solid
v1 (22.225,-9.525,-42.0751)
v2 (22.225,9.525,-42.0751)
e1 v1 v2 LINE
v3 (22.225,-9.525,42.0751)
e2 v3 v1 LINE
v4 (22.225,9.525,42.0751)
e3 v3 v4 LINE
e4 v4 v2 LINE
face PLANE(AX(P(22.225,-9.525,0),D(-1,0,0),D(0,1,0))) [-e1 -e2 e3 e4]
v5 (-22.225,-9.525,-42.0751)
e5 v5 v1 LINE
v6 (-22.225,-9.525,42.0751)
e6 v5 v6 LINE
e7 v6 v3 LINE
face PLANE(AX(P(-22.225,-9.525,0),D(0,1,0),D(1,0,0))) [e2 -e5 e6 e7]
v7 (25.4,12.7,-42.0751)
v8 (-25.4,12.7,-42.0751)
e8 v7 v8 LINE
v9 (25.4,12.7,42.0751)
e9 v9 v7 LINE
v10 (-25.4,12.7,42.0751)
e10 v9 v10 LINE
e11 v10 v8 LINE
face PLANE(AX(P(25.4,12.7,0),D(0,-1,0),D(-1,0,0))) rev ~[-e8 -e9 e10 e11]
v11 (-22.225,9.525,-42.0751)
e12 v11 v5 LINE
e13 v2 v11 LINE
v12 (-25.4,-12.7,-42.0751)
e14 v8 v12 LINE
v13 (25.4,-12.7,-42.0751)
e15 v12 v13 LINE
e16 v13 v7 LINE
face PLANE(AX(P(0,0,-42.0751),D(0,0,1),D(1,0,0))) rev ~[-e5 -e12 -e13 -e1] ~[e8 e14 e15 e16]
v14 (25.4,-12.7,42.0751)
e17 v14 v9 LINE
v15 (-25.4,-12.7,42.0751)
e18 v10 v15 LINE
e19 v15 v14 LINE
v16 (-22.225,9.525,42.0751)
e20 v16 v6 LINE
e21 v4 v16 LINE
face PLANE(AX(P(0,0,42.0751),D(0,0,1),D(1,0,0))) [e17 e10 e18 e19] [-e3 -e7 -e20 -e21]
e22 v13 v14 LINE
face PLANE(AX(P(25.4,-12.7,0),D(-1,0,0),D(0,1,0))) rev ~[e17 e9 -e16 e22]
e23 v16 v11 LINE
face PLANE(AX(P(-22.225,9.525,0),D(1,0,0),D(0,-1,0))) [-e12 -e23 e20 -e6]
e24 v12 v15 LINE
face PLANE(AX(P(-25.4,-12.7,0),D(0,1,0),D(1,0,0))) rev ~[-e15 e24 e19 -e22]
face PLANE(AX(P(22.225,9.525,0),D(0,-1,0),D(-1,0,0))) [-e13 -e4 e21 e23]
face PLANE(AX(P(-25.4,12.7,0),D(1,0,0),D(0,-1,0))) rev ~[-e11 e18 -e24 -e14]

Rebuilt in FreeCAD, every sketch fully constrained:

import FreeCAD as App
import Part
import Sketcher
Q = App.Units.Quantity

doc = App.newDocument("Part")
params = doc.addObject("Spreadsheet::Sheet", "Params")
for row, (alias, value) in enumerate([
    ("sketch1_width", "2 in"),
    ("sketch1_height", "1 in"),
    ("sketch1_width2", "1.75 in"),
    ("sketch1_height2", "0.75 in"),
    ("pad1_length", "3.313 in"),
], start=1):
    params.set(f"A{row}", alias)
    params.set(f"B{row}", "=" + value)
    params.setAlias(f"B{row}", alias)

body = doc.addObject("PartDesign::Body", "Body")

sketch1 = body.newObject("Sketcher::SketchObject", "Sketch")
sketch1.AttachmentSupport = (doc.getObject("XY_Plane"), [""])
sketch1.MapMode = "FlatFace"
sketch1.addGeometry([
    Part.LineSegment(App.Vector(-25, 13, 0), App.Vector(-25, -13, 0)),
    Part.LineSegment(App.Vector(-25, -13, 0), App.Vector(25, -13, 0)),
    Part.LineSegment(App.Vector(25, -13, 0), App.Vector(25, 13, 0)),
    Part.LineSegment(App.Vector(25, 13, 0), App.Vector(-25, 13, 0)),
    Part.LineSegment(App.Vector(22, -10, 0), App.Vector(-22, -10, 0)),
    Part.LineSegment(App.Vector(-22, -10, 0), App.Vector(-22, 10, 0)),
    Part.LineSegment(App.Vector(-22, 10, 0), App.Vector(22, 10, 0)),
    Part.LineSegment(App.Vector(22, 10, 0), App.Vector(22, -10, 0)),
], False)
sketch1.addConstraint([
    Sketcher.Constraint("Coincident", 0, 2, 1, 1),
    Sketcher.Constraint("Coincident", 1, 2, 2, 1),
    Sketcher.Constraint("Coincident", 2, 2, 3, 1),
    Sketcher.Constraint("Coincident", 3, 2, 0, 1),
    Sketcher.Constraint("Coincident", 4, 2, 5, 1),
    Sketcher.Constraint("Coincident", 5, 2, 6, 1),
    Sketcher.Constraint("Coincident", 6, 2, 7, 1),
    Sketcher.Constraint("Coincident", 7, 2, 4, 1),
    Sketcher.Constraint("Vertical", 0),
    Sketcher.Constraint("Horizontal", 1),
    Sketcher.Constraint("Vertical", 2),
    Sketcher.Constraint("Horizontal", 3),
    Sketcher.Constraint("Horizontal", 4),
    Sketcher.Constraint("Vertical", 5),
    Sketcher.Constraint("Horizontal", 6),
    Sketcher.Constraint("Vertical", 7),
    Sketcher.Constraint("Symmetric", 0, 2, 2, 2, -1, 1),
    Sketcher.Constraint("Symmetric", 4, 2, 6, 2, -1, 1),
    Sketcher.Constraint("DistanceX", 1, 1, 1, 2, Q("2 in")),
    Sketcher.Constraint("DistanceY", 0, 2, 0, 1, Q("1 in")),
    Sketcher.Constraint("DistanceX", 4, 2, 4, 1, Q("1.75 in")),
    Sketcher.Constraint("DistanceY", 5, 1, 5, 2, Q("0.75 in")),
])
sketch1.setExpression("Constraints[18]", "Params.sketch1_width")
sketch1.setExpression("Constraints[19]", "Params.sketch1_height")
sketch1.setExpression("Constraints[20]", "Params.sketch1_width2")
sketch1.setExpression("Constraints[21]", "Params.sketch1_height2")
pad1 = body.newObject("PartDesign::Pad", "Pad")
pad1.Profile = sketch1
pad1.setExpression("Length", "Params.pad1_length")
pad1.Midplane = True

doc.recompute()
